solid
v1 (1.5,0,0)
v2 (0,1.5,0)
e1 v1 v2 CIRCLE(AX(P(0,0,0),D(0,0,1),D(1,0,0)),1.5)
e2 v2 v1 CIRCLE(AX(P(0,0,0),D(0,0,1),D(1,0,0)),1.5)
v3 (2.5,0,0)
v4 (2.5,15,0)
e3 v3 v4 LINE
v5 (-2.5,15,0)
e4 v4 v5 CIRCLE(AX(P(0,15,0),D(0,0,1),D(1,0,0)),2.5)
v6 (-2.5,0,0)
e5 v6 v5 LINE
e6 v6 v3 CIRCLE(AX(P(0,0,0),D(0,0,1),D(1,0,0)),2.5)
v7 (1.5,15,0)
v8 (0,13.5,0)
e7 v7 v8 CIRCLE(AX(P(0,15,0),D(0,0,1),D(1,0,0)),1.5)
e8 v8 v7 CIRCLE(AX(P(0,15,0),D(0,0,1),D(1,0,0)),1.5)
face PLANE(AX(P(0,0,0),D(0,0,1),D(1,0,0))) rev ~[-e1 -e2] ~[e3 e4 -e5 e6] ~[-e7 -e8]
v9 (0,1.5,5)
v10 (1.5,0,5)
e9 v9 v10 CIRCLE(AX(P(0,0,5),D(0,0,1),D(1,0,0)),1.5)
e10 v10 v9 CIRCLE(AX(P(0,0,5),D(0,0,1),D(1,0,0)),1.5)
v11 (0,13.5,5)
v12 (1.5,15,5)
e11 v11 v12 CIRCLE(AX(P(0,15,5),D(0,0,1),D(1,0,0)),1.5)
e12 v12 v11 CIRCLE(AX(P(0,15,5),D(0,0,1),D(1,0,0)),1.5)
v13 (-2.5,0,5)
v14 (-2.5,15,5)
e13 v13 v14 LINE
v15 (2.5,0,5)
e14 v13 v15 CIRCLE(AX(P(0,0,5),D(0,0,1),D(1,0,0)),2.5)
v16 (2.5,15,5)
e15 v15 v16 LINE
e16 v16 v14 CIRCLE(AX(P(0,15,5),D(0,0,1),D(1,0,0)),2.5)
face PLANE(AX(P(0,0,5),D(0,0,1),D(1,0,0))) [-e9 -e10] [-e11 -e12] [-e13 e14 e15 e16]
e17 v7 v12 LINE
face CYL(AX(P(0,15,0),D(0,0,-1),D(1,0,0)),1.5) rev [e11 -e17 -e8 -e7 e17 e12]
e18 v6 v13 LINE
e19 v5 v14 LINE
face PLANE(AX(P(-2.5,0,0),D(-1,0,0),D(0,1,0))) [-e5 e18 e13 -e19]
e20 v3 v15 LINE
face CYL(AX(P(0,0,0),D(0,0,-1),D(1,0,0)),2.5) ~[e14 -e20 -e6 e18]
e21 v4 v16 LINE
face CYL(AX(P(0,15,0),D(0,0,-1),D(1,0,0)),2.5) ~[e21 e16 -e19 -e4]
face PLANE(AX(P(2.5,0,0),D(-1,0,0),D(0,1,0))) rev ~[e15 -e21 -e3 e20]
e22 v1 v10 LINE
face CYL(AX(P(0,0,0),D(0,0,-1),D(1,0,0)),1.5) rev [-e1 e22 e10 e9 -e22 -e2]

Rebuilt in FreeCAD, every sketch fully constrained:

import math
import FreeCAD as App
import Part
import Sketcher

V = App.Vector
Q = App.Units.Quantity

doc = App.newDocument("Part")
body = doc.addObject("PartDesign::Body", "Body")

# Sketch on XY plane
sketch1 = doc.addObject("Sketcher::SketchObject", "Sketch")
body.addObject(sketch1)
sketch1.AttachmentSupport = (doc.XY_Plane, [""])
sketch1.MapMode = "FlatFace"
sketch1.addGeometry(Part.ArcOfCircle(Part.Circle(V(0, 0, 0), V(0, 0, 1), 2.5), math.radians(180), math.radians(360)), False)
sketch1.addGeometry(Part.LineSegment(V(2.5, 0, 0), V(2.5, 15, 0)), False)
sketch1.addGeometry(Part.ArcOfCircle(Part.Circle(V(0, 15, 0), V(0, 0, 1), 2.5), math.radians(0), math.radians(180)), False)
sketch1.addGeometry(Part.LineSegment(V(-2.5, 15, 0), V(-2.5, 0, 0)), False)
sketch1.addGeometry(Part.Circle(V(0, 0, 0), V(0, 0, 1), 1.5), False)
sketch1.addGeometry(Part.Circle(V(0, 15, 0), V(0, 0, 1), 1.5), False)
sketch1.addConstraint(Sketcher.Constraint("Tangent", 0, 2, 1, 1))
sketch1.addConstraint(Sketcher.Constraint("Tangent", 1, 2, 2, 1))
sketch1.addConstraint(Sketcher.Constraint("Tangent", 2, 2, 3, 1))
sketch1.addConstraint(Sketcher.Constraint("Tangent", 3, 2, 0, 1))
sketch1.addConstraint(Sketcher.Constraint("Vertical", 1))
sketch1.addConstraint(Sketcher.Constraint("Vertical", 3))
sketch1.addConstraint(Sketcher.Constraint("Coincident", 0, 3, -1, 1))
sketch1.addConstraint(Sketcher.Constraint("Coincident", 4, 3, -1, 1))
sketch1.addConstraint(Sketcher.Constraint("Coincident", 5, 3, 2, 3))
sketch1.addConstraint(Sketcher.Constraint("Equal", 4, 5))
sketch1.addConstraint(Sketcher.Constraint("Diameter", 4, Q("3 mm")))
sketch1.addConstraint(Sketcher.Constraint("Radius", 0, Q("2.5 mm")))
sketch1.addConstraint(Sketcher.Constraint("DistanceY", 1, 1, 1, 2, Q("15 mm")))
pad1 = doc.addObject("PartDesign::Pad", "Pad")
body.addObject(pad1)
pad1.Profile = sketch1
pad1.Length = 5

doc.recompute()
